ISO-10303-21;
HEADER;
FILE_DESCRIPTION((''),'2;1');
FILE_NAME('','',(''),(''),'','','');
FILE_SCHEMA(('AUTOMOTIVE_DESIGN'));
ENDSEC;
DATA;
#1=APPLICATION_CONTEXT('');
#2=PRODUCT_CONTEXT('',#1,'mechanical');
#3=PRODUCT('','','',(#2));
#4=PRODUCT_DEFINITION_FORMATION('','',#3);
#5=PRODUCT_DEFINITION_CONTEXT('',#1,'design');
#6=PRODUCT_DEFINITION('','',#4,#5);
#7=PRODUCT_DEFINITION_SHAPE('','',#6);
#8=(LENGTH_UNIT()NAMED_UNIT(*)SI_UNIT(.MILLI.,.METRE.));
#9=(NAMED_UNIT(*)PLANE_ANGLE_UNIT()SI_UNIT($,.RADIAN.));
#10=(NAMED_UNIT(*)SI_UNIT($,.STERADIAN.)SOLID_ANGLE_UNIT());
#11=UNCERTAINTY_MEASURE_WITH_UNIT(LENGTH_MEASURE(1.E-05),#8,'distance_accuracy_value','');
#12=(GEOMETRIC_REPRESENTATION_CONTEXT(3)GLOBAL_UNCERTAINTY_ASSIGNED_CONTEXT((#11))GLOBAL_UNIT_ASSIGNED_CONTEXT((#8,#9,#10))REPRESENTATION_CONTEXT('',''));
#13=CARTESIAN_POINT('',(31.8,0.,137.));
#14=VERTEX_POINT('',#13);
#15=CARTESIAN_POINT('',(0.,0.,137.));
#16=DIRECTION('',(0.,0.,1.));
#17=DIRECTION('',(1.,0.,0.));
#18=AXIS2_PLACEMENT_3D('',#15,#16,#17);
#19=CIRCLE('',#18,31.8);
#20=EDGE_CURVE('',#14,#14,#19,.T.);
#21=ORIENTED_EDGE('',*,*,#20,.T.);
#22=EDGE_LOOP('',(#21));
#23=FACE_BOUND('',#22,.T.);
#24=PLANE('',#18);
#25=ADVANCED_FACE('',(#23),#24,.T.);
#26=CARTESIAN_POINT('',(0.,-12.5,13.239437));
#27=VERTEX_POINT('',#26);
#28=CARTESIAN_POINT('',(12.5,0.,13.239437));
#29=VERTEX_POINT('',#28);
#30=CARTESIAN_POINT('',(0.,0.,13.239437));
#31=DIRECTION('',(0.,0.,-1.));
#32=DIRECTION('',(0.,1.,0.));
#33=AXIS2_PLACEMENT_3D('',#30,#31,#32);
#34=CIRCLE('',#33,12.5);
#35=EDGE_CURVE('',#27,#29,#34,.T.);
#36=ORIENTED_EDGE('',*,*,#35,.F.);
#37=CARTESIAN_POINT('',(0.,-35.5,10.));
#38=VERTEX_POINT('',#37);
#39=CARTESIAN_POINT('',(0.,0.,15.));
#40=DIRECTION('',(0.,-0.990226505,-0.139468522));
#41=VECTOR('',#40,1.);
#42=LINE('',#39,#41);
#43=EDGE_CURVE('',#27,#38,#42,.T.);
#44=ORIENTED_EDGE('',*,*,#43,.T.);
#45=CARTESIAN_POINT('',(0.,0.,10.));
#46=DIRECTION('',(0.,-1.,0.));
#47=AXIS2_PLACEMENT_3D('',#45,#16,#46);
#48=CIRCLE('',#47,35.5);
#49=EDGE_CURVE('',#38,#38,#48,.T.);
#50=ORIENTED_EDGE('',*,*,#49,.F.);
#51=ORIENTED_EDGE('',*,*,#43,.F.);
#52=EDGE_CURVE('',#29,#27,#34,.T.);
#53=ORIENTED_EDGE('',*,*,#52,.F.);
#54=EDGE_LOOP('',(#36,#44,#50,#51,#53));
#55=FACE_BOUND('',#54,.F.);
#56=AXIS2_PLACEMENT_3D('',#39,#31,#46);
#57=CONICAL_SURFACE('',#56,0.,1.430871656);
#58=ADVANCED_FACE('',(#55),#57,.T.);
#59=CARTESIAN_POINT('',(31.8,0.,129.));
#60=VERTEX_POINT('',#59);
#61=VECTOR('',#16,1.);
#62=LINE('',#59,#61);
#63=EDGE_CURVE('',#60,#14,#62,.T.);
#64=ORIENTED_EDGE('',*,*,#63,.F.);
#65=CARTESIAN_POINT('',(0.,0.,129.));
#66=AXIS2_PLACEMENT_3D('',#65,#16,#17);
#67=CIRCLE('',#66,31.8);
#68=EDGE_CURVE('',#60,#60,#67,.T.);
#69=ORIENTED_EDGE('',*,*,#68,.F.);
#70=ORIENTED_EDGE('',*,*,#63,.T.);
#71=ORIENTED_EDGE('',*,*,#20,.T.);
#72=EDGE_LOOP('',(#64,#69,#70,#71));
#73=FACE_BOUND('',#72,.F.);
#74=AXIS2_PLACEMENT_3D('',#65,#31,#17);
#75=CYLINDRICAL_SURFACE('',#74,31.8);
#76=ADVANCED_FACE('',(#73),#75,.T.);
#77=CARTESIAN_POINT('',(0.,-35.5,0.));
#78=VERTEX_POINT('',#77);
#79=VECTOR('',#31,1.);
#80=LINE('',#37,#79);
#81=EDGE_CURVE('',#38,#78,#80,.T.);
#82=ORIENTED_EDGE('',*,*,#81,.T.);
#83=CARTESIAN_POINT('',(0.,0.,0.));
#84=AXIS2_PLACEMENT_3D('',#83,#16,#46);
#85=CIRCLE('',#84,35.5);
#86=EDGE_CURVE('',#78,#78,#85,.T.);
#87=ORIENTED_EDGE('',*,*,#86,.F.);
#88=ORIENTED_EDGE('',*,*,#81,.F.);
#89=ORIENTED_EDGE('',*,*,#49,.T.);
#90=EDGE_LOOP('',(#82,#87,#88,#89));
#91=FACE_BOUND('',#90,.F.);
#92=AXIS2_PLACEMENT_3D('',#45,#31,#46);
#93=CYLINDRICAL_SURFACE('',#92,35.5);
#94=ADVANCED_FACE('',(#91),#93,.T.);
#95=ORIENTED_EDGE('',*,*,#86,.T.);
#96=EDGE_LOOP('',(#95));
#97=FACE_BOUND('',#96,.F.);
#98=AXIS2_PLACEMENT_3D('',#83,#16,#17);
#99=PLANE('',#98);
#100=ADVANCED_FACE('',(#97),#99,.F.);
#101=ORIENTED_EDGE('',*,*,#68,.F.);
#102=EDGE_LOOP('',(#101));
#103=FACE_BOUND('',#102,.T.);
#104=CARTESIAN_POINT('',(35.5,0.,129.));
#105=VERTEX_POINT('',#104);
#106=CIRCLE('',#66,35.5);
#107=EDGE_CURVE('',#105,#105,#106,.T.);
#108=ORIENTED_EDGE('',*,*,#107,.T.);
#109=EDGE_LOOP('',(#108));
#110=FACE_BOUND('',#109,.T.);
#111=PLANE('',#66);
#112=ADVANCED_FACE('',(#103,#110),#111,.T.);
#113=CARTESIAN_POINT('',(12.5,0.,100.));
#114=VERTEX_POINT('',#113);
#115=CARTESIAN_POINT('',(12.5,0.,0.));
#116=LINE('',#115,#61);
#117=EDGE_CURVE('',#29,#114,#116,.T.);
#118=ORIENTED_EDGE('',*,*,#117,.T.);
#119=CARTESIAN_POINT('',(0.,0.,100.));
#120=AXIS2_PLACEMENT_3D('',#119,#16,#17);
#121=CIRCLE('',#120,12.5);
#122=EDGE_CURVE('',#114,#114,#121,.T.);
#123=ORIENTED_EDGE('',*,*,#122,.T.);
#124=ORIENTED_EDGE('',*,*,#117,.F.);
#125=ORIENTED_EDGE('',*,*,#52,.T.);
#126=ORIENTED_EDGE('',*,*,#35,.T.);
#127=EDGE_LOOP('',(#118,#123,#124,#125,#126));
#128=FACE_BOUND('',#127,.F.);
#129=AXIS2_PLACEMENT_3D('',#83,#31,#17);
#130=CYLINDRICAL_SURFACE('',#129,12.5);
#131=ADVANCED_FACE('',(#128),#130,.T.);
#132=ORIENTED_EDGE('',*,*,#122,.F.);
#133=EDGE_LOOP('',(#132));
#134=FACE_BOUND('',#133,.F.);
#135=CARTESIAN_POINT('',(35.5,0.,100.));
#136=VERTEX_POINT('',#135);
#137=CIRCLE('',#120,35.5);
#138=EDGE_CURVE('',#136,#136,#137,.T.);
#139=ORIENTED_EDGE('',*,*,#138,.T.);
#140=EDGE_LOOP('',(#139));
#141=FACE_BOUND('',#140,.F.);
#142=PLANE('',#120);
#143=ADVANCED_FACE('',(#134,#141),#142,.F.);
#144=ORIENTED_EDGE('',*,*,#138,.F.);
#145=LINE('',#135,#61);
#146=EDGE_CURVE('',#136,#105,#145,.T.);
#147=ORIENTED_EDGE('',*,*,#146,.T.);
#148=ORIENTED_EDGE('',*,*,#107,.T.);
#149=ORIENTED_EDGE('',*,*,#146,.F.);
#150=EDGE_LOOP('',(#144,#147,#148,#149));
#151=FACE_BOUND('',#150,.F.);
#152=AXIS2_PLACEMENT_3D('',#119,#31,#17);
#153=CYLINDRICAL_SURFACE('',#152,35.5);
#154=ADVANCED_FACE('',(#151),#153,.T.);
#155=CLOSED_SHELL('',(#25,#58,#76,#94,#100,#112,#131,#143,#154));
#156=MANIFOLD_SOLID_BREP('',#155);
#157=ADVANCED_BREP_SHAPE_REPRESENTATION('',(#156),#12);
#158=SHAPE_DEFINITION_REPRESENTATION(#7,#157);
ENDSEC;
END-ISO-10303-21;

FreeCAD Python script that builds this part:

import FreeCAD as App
import Part
import Sketcher
from FreeCAD import Vector
Q = App.Units.Quantity


def add_polygon(sketch, points):
    """Adds a closed chain of lines whose ends are joined by coincident constraints."""
    first, n = sketch.GeometryCount, len(points)
    for a, b in zip(points, points[1:] + points[:1]):
        sketch.addGeometry(Part.LineSegment(App.Vector(*a, 0), App.Vector(*b, 0)), False)
    for i in range(n):
        sketch.addConstraint(Sketcher.Constraint("Coincident", first + i, 2, first + (i + 1) % n, 1))

doc = App.newDocument("Part")
body = doc.addObject("PartDesign::Body", "Body")

# Sketch on YZ plane
sketch1 = body.newObject("Sketcher::SketchObject", "Sketch")
sketch1.AttachmentSupport = (doc.getObject("YZ_Plane"), [""])
sketch1.MapMode = "FlatFace"
add_polygon(sketch1, [(0, 0), (0, 15), (-36, 10), (-36, 0)])  # lines 0-3
sketch1.addConstraint(Sketcher.Constraint("Vertical", 0))
sketch1.addConstraint(Sketcher.Constraint("Vertical", 2))
sketch1.addConstraint(Sketcher.Constraint("Horizontal", 3))
sketch1.addConstraint(Sketcher.Constraint("Coincident", 3, 2, -1, 1))
sketch1.addConstraint(Sketcher.Constraint("DistanceY", 0, 1, 0, 2, Q("15 mm")))
sketch1.addConstraint(Sketcher.Constraint("DistanceY", 2, 2, 2, 1, Q("10 mm")))
sketch1.addConstraint(Sketcher.Constraint("DistanceX", 3, 1, 3, 2, Q("35.5 mm")))
revolution = body.newObject("PartDesign::Revolution", "Revolution")
revolution.Profile = sketch1
revolution.ReferenceAxis = (sketch1, ["V_Axis"])
revolution.Angle = 360

# Sketch on XY plane
sketch2 = body.newObject("Sketcher::SketchObject", "Sketch001")
sketch2.AttachmentSupport = (doc.getObject("XY_Plane"), [""])
sketch2.MapMode = "FlatFace"
sketch2.addGeometry(Part.Circle(Vector(0, 0, 0), Vector(0, 0, 1), 12), False)
sketch2.addConstraint(Sketcher.Constraint("Coincident", 0, 3, -1, 1))
sketch2.addConstraint(Sketcher.Constraint("Diameter", 0, Q("25 mm")))
pad1 = body.newObject("PartDesign::Pad", "Pad")
pad1.Profile = sketch2
pad1.Length = 100

# Sketch on XY plane
sketch3 = body.newObject("Sketcher::SketchObject", "Sketch002")
sketch3.AttachmentSupport = (doc.getObject("XY_Plane"), [""])
sketch3.MapMode = "FlatFace"
sketch3.AttachmentOffset = App.Placement(Vector(0, 0, 100), App.Rotation())
sketch3.addGeometry(Part.Circle(Vector(0, 0, 0), Vector(0, 0, 1), 36), False)
sketch3.addConstraint(Sketcher.Constraint("Coincident", 0, 3, -1, 1))
sketch3.addConstraint(Sketcher.Constraint("Diameter", 0, Q("71 mm")))
pad2 = body.newObject("PartDesign::Pad", "Pad001")
pad2.Profile = sketch3
pad2.Length = 29

# Sketch on XY plane
sketch4 = body.newObject("Sketcher::SketchObject", "Sketch003")
sketch4.AttachmentSupport = (doc.getObject("XY_Plane"), [""])
sketch4.MapMode = "FlatFace"
sketch4.AttachmentOffset = App.Placement(Vector(0, 0, 129), App.Rotation())
sketch4.addGeometry(Part.Circle(Vector(0, 0, 0), Vector(0, 0, 1), 32), False)
sketch4.addConstraint(Sketcher.Constraint("Coincident", 0, 3, -1, 1))
sketch4.addConstraint(Sketcher.Constraint("Diameter", 0, Q("63.6 mm")))
pad3 = body.newObject("PartDesign::Pad", "Pad002")
pad3.Profile = sketch4
pad3.Length = 8

doc.recompute()
